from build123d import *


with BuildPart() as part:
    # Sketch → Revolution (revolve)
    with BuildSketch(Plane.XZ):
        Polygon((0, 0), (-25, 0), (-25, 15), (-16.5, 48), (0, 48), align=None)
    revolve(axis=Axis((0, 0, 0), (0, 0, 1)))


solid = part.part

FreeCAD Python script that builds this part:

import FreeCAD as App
import Part
import Sketcher
from FreeCAD import Vector
Q = App.Units.Quantity


def add_polygon(sketch, points):
    """Adds a closed chain of lines whose ends are joined by coincident constraints."""
    first, n = sketch.GeometryCount, len(points)
    for a, b in zip(points, points[1:] + points[:1]):
        sketch.addGeometry(Part.LineSegment(App.Vector(*a, 0), App.Vector(*b, 0)), False)
    for i in range(n):
        sketch.addConstraint(Sketcher.Constraint("Coincident", first + i, 2, first + (i + 1) % n, 1))

doc = App.newDocument("Part")
body = doc.addObject("PartDesign::Body", "Body")

# Sketch on XZ plane
sketch1 = body.newObject("Sketcher::SketchObject", "Sketch")
sketch1.AttachmentSupport = (doc.getObject("XZ_Plane"), [""])
sketch1.MapMode = "FlatFace"
add_polygon(sketch1, [(-25, 0), (0, 0), (0, 48), (-16, 48), (-25, 15)])  # lines 0-4
sketch1.addConstraint([
    Sketcher.Constraint("Horizontal", 0),
    Sketcher.Constraint("Vertical", 1),
    Sketcher.Constraint("Horizontal", 2),
    Sketcher.Constraint("Vertical", 4),
    Sketcher.Constraint("Coincident", 0, 2, -1, 1),
    Sketcher.Constraint("DistanceX", 0, 1, 0, 2, Q("25 mm")),
    Sketcher.Constraint("DistanceY", 1, 1, 1, 2, Q("48 mm")),
    Sketcher.Constraint("DistanceY", 4, 2, 4, 1, Q("15 mm")),
    Sketcher.Constraint("DistanceX", 2, 2, 2, 1, Q("16.5 mm")),
])
revolution = body.newObject("PartDesign::Revolution", "Revolution")
revolution.Profile = sketch1
revolution.ReferenceAxis = (sketch1, ["V_Axis"])
revolution.Angle = 360

doc.recompute()
